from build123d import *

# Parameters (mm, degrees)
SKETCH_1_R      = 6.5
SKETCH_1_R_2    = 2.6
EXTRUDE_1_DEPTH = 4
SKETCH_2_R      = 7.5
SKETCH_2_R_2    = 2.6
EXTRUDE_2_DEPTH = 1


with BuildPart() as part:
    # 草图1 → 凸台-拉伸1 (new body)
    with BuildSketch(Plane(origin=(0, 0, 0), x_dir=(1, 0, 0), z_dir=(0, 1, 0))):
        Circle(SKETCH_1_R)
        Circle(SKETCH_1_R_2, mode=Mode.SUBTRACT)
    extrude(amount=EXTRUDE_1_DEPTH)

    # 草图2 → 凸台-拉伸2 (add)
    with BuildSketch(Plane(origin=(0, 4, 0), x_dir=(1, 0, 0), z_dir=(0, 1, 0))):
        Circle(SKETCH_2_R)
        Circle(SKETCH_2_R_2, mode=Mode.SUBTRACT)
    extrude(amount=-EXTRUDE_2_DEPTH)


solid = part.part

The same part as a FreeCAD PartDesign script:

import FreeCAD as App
import Part
import Sketcher

V = App.Vector
Q = App.Units.Quantity

doc = App.newDocument("Part")
body = doc.addObject("PartDesign::Body", "Body")

# Sketch on XZ plane
sketch1 = body.newObject("Sketcher::SketchObject", "Sketch")
sketch1.AttachmentSupport = (doc.getObject("XZ_Plane"), [""])
sketch1.MapMode = "FlatFace"
sketch1.addGeometry(Part.Circle(V(0, 0, 0), V(0, 0, 1), 6.5), False)
sketch1.addGeometry(Part.Circle(V(0, 0, 0), V(0, 0, 1), 2.6), False)
sketch1.addConstraint(Sketcher.Constraint("Coincident", 0, 3, -1, 1))
sketch1.addConstraint(Sketcher.Constraint("Coincident", 1, 3, -1, 1))
sketch1.addConstraint(Sketcher.Constraint("Diameter", 0, Q("13 mm")))
sketch1.addConstraint(Sketcher.Constraint("Diameter", 1, Q("5.2 mm")))
pad1 = body.newObject("PartDesign::Pad", "Pad")
pad1.Profile = sketch1
pad1.Length = 4
pad1.Reversed = True

# Sketch on XZ plane
sketch2 = body.newObject("Sketcher::SketchObject", "Sketch001")
sketch2.AttachmentSupport = (doc.getObject("XZ_Plane"), [""])
sketch2.MapMode = "FlatFace"
sketch2.AttachmentOffset = App.Placement(V(0, 0, -4), App.Rotation())
sketch2.addGeometry(Part.Circle(V(0, 0, 0), V(0, 0, 1), 7.5), False)
sketch2.addGeometry(Part.Circle(V(0, 0, 0), V(0, 0, 1), 2.6), False)
sketch2.addConstraint(Sketcher.Constraint("Coincident", 0, 3, -1, 1))
sketch2.addConstraint(Sketcher.Constraint("Coincident", 1, 3, -1, 1))
sketch2.addConstraint(Sketcher.Constraint("Diameter", 0, Q("15 mm")))
sketch2.addConstraint(Sketcher.Constraint("Diameter", 1, Q("5.2 mm")))
pad2 = body.newObject("PartDesign::Pad", "Pad001")
pad2.Profile = sketch2
pad2.Length = 1

doc.recompute()
